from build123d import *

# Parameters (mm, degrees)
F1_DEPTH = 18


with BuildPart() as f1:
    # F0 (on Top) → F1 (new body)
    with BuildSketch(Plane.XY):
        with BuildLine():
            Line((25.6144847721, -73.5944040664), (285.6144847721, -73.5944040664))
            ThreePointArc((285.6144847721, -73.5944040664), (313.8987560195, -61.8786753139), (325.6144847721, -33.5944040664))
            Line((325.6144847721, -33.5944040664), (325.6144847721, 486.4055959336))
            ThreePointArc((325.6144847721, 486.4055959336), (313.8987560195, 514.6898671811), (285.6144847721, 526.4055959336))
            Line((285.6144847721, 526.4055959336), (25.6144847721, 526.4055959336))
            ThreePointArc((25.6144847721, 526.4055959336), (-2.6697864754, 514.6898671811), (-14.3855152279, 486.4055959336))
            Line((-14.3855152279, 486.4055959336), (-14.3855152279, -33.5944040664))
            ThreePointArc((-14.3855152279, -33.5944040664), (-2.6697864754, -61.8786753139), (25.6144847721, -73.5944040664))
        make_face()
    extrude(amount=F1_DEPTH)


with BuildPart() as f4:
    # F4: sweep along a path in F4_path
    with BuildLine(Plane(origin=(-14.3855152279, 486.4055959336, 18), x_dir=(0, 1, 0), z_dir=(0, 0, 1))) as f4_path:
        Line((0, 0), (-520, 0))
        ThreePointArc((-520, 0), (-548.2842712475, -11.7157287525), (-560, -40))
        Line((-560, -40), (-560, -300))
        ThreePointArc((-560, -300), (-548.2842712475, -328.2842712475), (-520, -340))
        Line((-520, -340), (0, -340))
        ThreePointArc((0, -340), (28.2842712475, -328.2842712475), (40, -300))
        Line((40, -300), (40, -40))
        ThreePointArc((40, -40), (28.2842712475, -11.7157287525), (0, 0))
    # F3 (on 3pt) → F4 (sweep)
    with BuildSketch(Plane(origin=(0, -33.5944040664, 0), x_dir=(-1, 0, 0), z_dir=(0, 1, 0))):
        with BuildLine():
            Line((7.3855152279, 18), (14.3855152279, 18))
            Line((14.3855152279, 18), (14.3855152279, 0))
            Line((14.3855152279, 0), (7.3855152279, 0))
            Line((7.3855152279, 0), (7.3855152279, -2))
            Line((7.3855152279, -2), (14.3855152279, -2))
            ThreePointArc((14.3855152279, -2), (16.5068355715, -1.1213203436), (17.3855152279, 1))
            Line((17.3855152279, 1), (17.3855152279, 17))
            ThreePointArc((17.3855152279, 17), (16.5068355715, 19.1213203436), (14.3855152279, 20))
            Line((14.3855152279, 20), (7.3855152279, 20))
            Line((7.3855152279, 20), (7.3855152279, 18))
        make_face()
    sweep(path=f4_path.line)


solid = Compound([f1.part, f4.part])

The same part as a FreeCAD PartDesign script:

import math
import FreeCAD as App
import Part
import Sketcher

V = App.Vector
Q = App.Units.Quantity

doc = App.newDocument("Part")
params = doc.addObject("Spreadsheet::Sheet", "Params")
for row, (alias, value) in enumerate([
    ("sketch1_radius", "40 mm"),
    ("sketch1_width", "260 mm"),
    ("sketch1_height", "520 mm"),
    ("pad1_length", "18 mm"),
    ("sketch2_radius", "3 mm"),
    ("sketch2_width", "7 mm"),
    ("sketch2_height", "18 mm"),
    ("sketch2_height2", "2 mm"),
    ("sketch3_radius", "40 mm"),
    ("sketch3_width", "260 mm"),
    ("sketch3_height", "520 mm"),
], start=1):
    params.set(f"A{row}", alias)
    params.set(f"B{row}", "=" + value)
    params.setAlias(f"B{row}", alias)

body = doc.addObject("PartDesign::Body", "Body")

# Sketch on XY plane
sketch1 = body.newObject("Sketcher::SketchObject", "Sketch")
sketch1.AttachmentSupport = (doc.getObject("XY_Plane"), [""])
sketch1.MapMode = "FlatFace"
sketch1.addGeometry([
    Part.LineSegment(V(26, -74, 0), V(286, -74, 0)),  # 0
    Part.ArcOfCircle(Part.Circle(V(286, -34, 0), V(0, 0, 1), 40), math.radians(-90), math.radians(0)),  # 1
    Part.LineSegment(V(326, -34, 0), V(326, 486, 0)),  # 2
    Part.ArcOfCircle(Part.Circle(V(286, 486, 0), V(0, 0, 1), 40), math.radians(0), math.radians(90)),  # 3
    Part.LineSegment(V(286, 526, 0), V(26, 526, 0)),  # 4
    Part.ArcOfCircle(Part.Circle(V(26, 486, 0), V(0, 0, 1), 40), math.radians(90), math.radians(180)),  # 5
    Part.LineSegment(V(-14, 486, 0), V(-14, -34, 0)),  # 6
    Part.ArcOfCircle(Part.Circle(V(26, -34, 0), V(0, 0, 1), 40), math.radians(180), math.radians(270)),  # 7
], False)
sketch1.addConstraint([
    Sketcher.Constraint("Tangent", 0, 2, 1, 1),
    Sketcher.Constraint("Tangent", 1, 2, 2, 1),
    Sketcher.Constraint("Tangent", 2, 2, 3, 1),
    Sketcher.Constraint("Tangent", 3, 2, 4, 1),
    Sketcher.Constraint("Tangent", 4, 2, 5, 1),
    Sketcher.Constraint("Tangent", 5, 2, 6, 1),
    Sketcher.Constraint("Tangent", 6, 2, 7, 1),
    Sketcher.Constraint("Tangent", 7, 2, 0, 1),
    Sketcher.Constraint("Horizontal", 0),
    Sketcher.Constraint("Vertical", 2),
    Sketcher.Constraint("Horizontal", 4),
    Sketcher.Constraint("Vertical", 6),
    Sketcher.Constraint("Equal", 1, 3),
    Sketcher.Constraint("Equal", 3, 5),
    Sketcher.Constraint("Equal", 5, 7),
    Sketcher.Constraint("Radius", 1, Q("40 mm")),
    Sketcher.Constraint("DistanceX", 0, 1, 0, 2, Q("260 mm")),
    Sketcher.Constraint("DistanceY", 2, 1, 2, 2, Q("520 mm")),
    Sketcher.Constraint("DistanceX", -1, 1, 1, 3, Q("285.614485 mm")),
    Sketcher.Constraint("DistanceY", 1, 3, -1, 1, Q("33.594404 mm")),
])
sketch1.setExpression("Constraints[15]", "Params.sketch1_radius")
sketch1.setExpression("Constraints[16]", "Params.sketch1_width")
sketch1.setExpression("Constraints[17]", "Params.sketch1_height")
pad1 = body.newObject("PartDesign::Pad", "Pad")
pad1.Profile = sketch1
pad1.setExpression("Length", "Params.pad1_length")
body2 = doc.addObject("PartDesign::Body", "Body001")

# Sketch on XZ plane
sketch2 = body2.newObject("Sketcher::SketchObject", "Sketch001")
sketch2.AttachmentSupport = (doc.getObject("XZ_Plane001"), [""])
sketch2.MapMode = "FlatFace"
sketch2.AttachmentOffset = App.Placement(V(0, 0, 33.594404), App.Rotation())
sketch2.addGeometry([
    Part.LineSegment(V(-7.4, 18, 0), V(-14.4, 18, 0)),  # 0
    Part.LineSegment(V(-14.4, 18, 0), V(-14.4, 0, 0)),  # 1
    Part.LineSegment(V(-14.4, 0, 0), V(-7.4, 0, 0)),  # 2
    Part.LineSegment(V(-7.4, 0, 0), V(-7.4, -2, 0)),  # 3
    Part.LineSegment(V(-7.4, -2, 0), V(-14.4, -2, 0)),  # 4
    Part.ArcOfCircle(Part.Circle(V(-14.4, 1, 0), V(0, 0, 1), 3), math.radians(180), math.radians(270)),  # 5
    Part.LineSegment(V(-17.4, 1, 0), V(-17.4, 17, 0)),  # 6
    Part.ArcOfCircle(Part.Circle(V(-14.4, 17, 0), V(0, 0, 1), 3), math.radians(90), math.radians(180)),  # 7
    Part.LineSegment(V(-14.4, 20, 0), V(-7.4, 20, 0)),  # 8
    Part.LineSegment(V(-7.4, 20, 0), V(-7.4, 18, 0)),  # 9
], False)
sketch2.addConstraint([
    Sketcher.Constraint("Coincident", 0, 2, 1, 1),
    Sketcher.Constraint("Coincident", 1, 2, 2, 1),
    Sketcher.Constraint("Coincident", 2, 2, 3, 1),
    Sketcher.Constraint("Coincident", 3, 2, 4, 1),
    Sketcher.Constraint("Tangent", 4, 2, 5, 2),
    Sketcher.Constraint("Tangent", 5, 1, 6, 1),
    Sketcher.Constraint("Tangent", 6, 2, 7, 2),
    Sketcher.Constraint("Tangent", 7, 1, 8, 1),
    Sketcher.Constraint("Coincident", 8, 2, 9, 1),
    Sketcher.Constraint("Coincident", 9, 2, 0, 1),
    Sketcher.Constraint("Horizontal", 0),
    Sketcher.Constraint("Vertical", 1),
    Sketcher.Constraint("Horizontal", 2),
    Sketcher.Constraint("Vertical", 3),
    Sketcher.Constraint("Horizontal", 4),
    Sketcher.Constraint("Vertical", 6),
    Sketcher.Constraint("Horizontal", 8),
    Sketcher.Constraint("Vertical", 9),
    Sketcher.Constraint("Equal", 5, 7),
    Sketcher.Constraint("PointOnObject", 1, 2, -1),
    Sketcher.Constraint("Vertical", 7, 3, 0, 2),
    Sketcher.Constraint("Vertical", 3, 2, 8, 2),
    Sketcher.Constraint("Equal", 3, 9),
    Sketcher.Constraint("Radius", 5, Q("3 mm")),
    Sketcher.Constraint("DistanceX", 0, 2, 0, 1, Q("7 mm")),
    Sketcher.Constraint("DistanceY", 1, 2, 1, 1, Q("18 mm")),
    Sketcher.Constraint("DistanceY", 3, 2, 3, 1, Q("2 mm")),
    Sketcher.Constraint("DistanceX", 5, 3, -1, 1, Q("14.385515 mm")),
])
sketch2.setExpression("Constraints[23]", "Params.sketch2_radius")
sketch2.setExpression("Constraints[24]", "Params.sketch2_width")
sketch2.setExpression("Constraints[25]", "Params.sketch2_height")
sketch2.setExpression("Constraints[26]", "Params.sketch2_height2")

# Sketch on XY plane
sketch3 = body2.newObject("Sketcher::SketchObject", "Sketch002")
sketch3.AttachmentSupport = (doc.getObject("XY_Plane001"), [""])
sketch3.MapMode = "FlatFace"
sketch3.AttachmentOffset = App.Placement(V(0, 0, 18), App.Rotation())
sketch3.addGeometry([
    Part.LineSegment(V(-14, 486, 0), V(-14, -34, 0)),  # 0
    Part.ArcOfCircle(Part.Circle(V(26, -34, 0), V(0, 0, 1), 40), math.radians(180), math.radians(270)),  # 1
    Part.LineSegment(V(26, -74, 0), V(286, -74, 0)),  # 2
    Part.ArcOfCircle(Part.Circle(V(286, -34, 0), V(0, 0, 1), 40), math.radians(-90), math.radians(0)),  # 3
    Part.LineSegment(V(326, -34, 0), V(326, 486, 0)),  # 4
    Part.ArcOfCircle(Part.Circle(V(286, 486, 0), V(0, 0, 1), 40), math.radians(0), math.radians(90)),  # 5
    Part.LineSegment(V(286, 526, 0), V(26, 526, 0)),  # 6
    Part.ArcOfCircle(Part.Circle(V(26, 486, 0), V(0, 0, 1), 40), math.radians(90), math.radians(180)),  # 7
], False)
sketch3.addConstraint([
    Sketcher.Constraint("Tangent", 0, 2, 1, 1),
    Sketcher.Constraint("Tangent", 1, 2, 2, 1),
    Sketcher.Constraint("Tangent", 2, 2, 3, 1),
    Sketcher.Constraint("Tangent", 3, 2, 4, 1),
    Sketcher.Constraint("Tangent", 4, 2, 5, 1),
    Sketcher.Constraint("Tangent", 5, 2, 6, 1),
    Sketcher.Constraint("Tangent", 6, 2, 7, 1),
    Sketcher.Constraint("Tangent", 7, 2, 0, 1),
    Sketcher.Constraint("Vertical", 0),
    Sketcher.Constraint("Horizontal", 2),
    Sketcher.Constraint("Vertical", 4),
    Sketcher.Constraint("Horizontal", 6),
    Sketcher.Constraint("Equal", 1, 3),
    Sketcher.Constraint("Equal", 3, 5),
    Sketcher.Constraint("Equal", 5, 7),
    Sketcher.Constraint("Radius", 1, Q("40 mm")),
    Sketcher.Constraint("DistanceX", 2, 1, 2, 2, Q("260 mm")),
    Sketcher.Constraint("DistanceY", 0, 2, 0, 1, Q("520 mm")),
    Sketcher.Constraint("DistanceX", -1, 1, 1, 3, Q("25.614485 mm")),
    Sketcher.Constraint("DistanceY", 1, 3, -1, 1, Q("33.594404 mm")),
])
sketch3.setExpression("Constraints[15]", "Params.sketch3_radius")
sketch3.setExpression("Constraints[16]", "Params.sketch3_width")
sketch3.setExpression("Constraints[17]", "Params.sketch3_height")
doc.recompute()

additivepipe = body2.newObject("PartDesign::AdditivePipe", "AdditivePipe")
additivepipe.Profile = sketch2
additivepipe.Spine = (sketch3, ["Edge1", "Edge2", "Edge3", "Edge4", "Edge5", "Edge6", "Edge7", "Edge8"])

doc.recompute()
